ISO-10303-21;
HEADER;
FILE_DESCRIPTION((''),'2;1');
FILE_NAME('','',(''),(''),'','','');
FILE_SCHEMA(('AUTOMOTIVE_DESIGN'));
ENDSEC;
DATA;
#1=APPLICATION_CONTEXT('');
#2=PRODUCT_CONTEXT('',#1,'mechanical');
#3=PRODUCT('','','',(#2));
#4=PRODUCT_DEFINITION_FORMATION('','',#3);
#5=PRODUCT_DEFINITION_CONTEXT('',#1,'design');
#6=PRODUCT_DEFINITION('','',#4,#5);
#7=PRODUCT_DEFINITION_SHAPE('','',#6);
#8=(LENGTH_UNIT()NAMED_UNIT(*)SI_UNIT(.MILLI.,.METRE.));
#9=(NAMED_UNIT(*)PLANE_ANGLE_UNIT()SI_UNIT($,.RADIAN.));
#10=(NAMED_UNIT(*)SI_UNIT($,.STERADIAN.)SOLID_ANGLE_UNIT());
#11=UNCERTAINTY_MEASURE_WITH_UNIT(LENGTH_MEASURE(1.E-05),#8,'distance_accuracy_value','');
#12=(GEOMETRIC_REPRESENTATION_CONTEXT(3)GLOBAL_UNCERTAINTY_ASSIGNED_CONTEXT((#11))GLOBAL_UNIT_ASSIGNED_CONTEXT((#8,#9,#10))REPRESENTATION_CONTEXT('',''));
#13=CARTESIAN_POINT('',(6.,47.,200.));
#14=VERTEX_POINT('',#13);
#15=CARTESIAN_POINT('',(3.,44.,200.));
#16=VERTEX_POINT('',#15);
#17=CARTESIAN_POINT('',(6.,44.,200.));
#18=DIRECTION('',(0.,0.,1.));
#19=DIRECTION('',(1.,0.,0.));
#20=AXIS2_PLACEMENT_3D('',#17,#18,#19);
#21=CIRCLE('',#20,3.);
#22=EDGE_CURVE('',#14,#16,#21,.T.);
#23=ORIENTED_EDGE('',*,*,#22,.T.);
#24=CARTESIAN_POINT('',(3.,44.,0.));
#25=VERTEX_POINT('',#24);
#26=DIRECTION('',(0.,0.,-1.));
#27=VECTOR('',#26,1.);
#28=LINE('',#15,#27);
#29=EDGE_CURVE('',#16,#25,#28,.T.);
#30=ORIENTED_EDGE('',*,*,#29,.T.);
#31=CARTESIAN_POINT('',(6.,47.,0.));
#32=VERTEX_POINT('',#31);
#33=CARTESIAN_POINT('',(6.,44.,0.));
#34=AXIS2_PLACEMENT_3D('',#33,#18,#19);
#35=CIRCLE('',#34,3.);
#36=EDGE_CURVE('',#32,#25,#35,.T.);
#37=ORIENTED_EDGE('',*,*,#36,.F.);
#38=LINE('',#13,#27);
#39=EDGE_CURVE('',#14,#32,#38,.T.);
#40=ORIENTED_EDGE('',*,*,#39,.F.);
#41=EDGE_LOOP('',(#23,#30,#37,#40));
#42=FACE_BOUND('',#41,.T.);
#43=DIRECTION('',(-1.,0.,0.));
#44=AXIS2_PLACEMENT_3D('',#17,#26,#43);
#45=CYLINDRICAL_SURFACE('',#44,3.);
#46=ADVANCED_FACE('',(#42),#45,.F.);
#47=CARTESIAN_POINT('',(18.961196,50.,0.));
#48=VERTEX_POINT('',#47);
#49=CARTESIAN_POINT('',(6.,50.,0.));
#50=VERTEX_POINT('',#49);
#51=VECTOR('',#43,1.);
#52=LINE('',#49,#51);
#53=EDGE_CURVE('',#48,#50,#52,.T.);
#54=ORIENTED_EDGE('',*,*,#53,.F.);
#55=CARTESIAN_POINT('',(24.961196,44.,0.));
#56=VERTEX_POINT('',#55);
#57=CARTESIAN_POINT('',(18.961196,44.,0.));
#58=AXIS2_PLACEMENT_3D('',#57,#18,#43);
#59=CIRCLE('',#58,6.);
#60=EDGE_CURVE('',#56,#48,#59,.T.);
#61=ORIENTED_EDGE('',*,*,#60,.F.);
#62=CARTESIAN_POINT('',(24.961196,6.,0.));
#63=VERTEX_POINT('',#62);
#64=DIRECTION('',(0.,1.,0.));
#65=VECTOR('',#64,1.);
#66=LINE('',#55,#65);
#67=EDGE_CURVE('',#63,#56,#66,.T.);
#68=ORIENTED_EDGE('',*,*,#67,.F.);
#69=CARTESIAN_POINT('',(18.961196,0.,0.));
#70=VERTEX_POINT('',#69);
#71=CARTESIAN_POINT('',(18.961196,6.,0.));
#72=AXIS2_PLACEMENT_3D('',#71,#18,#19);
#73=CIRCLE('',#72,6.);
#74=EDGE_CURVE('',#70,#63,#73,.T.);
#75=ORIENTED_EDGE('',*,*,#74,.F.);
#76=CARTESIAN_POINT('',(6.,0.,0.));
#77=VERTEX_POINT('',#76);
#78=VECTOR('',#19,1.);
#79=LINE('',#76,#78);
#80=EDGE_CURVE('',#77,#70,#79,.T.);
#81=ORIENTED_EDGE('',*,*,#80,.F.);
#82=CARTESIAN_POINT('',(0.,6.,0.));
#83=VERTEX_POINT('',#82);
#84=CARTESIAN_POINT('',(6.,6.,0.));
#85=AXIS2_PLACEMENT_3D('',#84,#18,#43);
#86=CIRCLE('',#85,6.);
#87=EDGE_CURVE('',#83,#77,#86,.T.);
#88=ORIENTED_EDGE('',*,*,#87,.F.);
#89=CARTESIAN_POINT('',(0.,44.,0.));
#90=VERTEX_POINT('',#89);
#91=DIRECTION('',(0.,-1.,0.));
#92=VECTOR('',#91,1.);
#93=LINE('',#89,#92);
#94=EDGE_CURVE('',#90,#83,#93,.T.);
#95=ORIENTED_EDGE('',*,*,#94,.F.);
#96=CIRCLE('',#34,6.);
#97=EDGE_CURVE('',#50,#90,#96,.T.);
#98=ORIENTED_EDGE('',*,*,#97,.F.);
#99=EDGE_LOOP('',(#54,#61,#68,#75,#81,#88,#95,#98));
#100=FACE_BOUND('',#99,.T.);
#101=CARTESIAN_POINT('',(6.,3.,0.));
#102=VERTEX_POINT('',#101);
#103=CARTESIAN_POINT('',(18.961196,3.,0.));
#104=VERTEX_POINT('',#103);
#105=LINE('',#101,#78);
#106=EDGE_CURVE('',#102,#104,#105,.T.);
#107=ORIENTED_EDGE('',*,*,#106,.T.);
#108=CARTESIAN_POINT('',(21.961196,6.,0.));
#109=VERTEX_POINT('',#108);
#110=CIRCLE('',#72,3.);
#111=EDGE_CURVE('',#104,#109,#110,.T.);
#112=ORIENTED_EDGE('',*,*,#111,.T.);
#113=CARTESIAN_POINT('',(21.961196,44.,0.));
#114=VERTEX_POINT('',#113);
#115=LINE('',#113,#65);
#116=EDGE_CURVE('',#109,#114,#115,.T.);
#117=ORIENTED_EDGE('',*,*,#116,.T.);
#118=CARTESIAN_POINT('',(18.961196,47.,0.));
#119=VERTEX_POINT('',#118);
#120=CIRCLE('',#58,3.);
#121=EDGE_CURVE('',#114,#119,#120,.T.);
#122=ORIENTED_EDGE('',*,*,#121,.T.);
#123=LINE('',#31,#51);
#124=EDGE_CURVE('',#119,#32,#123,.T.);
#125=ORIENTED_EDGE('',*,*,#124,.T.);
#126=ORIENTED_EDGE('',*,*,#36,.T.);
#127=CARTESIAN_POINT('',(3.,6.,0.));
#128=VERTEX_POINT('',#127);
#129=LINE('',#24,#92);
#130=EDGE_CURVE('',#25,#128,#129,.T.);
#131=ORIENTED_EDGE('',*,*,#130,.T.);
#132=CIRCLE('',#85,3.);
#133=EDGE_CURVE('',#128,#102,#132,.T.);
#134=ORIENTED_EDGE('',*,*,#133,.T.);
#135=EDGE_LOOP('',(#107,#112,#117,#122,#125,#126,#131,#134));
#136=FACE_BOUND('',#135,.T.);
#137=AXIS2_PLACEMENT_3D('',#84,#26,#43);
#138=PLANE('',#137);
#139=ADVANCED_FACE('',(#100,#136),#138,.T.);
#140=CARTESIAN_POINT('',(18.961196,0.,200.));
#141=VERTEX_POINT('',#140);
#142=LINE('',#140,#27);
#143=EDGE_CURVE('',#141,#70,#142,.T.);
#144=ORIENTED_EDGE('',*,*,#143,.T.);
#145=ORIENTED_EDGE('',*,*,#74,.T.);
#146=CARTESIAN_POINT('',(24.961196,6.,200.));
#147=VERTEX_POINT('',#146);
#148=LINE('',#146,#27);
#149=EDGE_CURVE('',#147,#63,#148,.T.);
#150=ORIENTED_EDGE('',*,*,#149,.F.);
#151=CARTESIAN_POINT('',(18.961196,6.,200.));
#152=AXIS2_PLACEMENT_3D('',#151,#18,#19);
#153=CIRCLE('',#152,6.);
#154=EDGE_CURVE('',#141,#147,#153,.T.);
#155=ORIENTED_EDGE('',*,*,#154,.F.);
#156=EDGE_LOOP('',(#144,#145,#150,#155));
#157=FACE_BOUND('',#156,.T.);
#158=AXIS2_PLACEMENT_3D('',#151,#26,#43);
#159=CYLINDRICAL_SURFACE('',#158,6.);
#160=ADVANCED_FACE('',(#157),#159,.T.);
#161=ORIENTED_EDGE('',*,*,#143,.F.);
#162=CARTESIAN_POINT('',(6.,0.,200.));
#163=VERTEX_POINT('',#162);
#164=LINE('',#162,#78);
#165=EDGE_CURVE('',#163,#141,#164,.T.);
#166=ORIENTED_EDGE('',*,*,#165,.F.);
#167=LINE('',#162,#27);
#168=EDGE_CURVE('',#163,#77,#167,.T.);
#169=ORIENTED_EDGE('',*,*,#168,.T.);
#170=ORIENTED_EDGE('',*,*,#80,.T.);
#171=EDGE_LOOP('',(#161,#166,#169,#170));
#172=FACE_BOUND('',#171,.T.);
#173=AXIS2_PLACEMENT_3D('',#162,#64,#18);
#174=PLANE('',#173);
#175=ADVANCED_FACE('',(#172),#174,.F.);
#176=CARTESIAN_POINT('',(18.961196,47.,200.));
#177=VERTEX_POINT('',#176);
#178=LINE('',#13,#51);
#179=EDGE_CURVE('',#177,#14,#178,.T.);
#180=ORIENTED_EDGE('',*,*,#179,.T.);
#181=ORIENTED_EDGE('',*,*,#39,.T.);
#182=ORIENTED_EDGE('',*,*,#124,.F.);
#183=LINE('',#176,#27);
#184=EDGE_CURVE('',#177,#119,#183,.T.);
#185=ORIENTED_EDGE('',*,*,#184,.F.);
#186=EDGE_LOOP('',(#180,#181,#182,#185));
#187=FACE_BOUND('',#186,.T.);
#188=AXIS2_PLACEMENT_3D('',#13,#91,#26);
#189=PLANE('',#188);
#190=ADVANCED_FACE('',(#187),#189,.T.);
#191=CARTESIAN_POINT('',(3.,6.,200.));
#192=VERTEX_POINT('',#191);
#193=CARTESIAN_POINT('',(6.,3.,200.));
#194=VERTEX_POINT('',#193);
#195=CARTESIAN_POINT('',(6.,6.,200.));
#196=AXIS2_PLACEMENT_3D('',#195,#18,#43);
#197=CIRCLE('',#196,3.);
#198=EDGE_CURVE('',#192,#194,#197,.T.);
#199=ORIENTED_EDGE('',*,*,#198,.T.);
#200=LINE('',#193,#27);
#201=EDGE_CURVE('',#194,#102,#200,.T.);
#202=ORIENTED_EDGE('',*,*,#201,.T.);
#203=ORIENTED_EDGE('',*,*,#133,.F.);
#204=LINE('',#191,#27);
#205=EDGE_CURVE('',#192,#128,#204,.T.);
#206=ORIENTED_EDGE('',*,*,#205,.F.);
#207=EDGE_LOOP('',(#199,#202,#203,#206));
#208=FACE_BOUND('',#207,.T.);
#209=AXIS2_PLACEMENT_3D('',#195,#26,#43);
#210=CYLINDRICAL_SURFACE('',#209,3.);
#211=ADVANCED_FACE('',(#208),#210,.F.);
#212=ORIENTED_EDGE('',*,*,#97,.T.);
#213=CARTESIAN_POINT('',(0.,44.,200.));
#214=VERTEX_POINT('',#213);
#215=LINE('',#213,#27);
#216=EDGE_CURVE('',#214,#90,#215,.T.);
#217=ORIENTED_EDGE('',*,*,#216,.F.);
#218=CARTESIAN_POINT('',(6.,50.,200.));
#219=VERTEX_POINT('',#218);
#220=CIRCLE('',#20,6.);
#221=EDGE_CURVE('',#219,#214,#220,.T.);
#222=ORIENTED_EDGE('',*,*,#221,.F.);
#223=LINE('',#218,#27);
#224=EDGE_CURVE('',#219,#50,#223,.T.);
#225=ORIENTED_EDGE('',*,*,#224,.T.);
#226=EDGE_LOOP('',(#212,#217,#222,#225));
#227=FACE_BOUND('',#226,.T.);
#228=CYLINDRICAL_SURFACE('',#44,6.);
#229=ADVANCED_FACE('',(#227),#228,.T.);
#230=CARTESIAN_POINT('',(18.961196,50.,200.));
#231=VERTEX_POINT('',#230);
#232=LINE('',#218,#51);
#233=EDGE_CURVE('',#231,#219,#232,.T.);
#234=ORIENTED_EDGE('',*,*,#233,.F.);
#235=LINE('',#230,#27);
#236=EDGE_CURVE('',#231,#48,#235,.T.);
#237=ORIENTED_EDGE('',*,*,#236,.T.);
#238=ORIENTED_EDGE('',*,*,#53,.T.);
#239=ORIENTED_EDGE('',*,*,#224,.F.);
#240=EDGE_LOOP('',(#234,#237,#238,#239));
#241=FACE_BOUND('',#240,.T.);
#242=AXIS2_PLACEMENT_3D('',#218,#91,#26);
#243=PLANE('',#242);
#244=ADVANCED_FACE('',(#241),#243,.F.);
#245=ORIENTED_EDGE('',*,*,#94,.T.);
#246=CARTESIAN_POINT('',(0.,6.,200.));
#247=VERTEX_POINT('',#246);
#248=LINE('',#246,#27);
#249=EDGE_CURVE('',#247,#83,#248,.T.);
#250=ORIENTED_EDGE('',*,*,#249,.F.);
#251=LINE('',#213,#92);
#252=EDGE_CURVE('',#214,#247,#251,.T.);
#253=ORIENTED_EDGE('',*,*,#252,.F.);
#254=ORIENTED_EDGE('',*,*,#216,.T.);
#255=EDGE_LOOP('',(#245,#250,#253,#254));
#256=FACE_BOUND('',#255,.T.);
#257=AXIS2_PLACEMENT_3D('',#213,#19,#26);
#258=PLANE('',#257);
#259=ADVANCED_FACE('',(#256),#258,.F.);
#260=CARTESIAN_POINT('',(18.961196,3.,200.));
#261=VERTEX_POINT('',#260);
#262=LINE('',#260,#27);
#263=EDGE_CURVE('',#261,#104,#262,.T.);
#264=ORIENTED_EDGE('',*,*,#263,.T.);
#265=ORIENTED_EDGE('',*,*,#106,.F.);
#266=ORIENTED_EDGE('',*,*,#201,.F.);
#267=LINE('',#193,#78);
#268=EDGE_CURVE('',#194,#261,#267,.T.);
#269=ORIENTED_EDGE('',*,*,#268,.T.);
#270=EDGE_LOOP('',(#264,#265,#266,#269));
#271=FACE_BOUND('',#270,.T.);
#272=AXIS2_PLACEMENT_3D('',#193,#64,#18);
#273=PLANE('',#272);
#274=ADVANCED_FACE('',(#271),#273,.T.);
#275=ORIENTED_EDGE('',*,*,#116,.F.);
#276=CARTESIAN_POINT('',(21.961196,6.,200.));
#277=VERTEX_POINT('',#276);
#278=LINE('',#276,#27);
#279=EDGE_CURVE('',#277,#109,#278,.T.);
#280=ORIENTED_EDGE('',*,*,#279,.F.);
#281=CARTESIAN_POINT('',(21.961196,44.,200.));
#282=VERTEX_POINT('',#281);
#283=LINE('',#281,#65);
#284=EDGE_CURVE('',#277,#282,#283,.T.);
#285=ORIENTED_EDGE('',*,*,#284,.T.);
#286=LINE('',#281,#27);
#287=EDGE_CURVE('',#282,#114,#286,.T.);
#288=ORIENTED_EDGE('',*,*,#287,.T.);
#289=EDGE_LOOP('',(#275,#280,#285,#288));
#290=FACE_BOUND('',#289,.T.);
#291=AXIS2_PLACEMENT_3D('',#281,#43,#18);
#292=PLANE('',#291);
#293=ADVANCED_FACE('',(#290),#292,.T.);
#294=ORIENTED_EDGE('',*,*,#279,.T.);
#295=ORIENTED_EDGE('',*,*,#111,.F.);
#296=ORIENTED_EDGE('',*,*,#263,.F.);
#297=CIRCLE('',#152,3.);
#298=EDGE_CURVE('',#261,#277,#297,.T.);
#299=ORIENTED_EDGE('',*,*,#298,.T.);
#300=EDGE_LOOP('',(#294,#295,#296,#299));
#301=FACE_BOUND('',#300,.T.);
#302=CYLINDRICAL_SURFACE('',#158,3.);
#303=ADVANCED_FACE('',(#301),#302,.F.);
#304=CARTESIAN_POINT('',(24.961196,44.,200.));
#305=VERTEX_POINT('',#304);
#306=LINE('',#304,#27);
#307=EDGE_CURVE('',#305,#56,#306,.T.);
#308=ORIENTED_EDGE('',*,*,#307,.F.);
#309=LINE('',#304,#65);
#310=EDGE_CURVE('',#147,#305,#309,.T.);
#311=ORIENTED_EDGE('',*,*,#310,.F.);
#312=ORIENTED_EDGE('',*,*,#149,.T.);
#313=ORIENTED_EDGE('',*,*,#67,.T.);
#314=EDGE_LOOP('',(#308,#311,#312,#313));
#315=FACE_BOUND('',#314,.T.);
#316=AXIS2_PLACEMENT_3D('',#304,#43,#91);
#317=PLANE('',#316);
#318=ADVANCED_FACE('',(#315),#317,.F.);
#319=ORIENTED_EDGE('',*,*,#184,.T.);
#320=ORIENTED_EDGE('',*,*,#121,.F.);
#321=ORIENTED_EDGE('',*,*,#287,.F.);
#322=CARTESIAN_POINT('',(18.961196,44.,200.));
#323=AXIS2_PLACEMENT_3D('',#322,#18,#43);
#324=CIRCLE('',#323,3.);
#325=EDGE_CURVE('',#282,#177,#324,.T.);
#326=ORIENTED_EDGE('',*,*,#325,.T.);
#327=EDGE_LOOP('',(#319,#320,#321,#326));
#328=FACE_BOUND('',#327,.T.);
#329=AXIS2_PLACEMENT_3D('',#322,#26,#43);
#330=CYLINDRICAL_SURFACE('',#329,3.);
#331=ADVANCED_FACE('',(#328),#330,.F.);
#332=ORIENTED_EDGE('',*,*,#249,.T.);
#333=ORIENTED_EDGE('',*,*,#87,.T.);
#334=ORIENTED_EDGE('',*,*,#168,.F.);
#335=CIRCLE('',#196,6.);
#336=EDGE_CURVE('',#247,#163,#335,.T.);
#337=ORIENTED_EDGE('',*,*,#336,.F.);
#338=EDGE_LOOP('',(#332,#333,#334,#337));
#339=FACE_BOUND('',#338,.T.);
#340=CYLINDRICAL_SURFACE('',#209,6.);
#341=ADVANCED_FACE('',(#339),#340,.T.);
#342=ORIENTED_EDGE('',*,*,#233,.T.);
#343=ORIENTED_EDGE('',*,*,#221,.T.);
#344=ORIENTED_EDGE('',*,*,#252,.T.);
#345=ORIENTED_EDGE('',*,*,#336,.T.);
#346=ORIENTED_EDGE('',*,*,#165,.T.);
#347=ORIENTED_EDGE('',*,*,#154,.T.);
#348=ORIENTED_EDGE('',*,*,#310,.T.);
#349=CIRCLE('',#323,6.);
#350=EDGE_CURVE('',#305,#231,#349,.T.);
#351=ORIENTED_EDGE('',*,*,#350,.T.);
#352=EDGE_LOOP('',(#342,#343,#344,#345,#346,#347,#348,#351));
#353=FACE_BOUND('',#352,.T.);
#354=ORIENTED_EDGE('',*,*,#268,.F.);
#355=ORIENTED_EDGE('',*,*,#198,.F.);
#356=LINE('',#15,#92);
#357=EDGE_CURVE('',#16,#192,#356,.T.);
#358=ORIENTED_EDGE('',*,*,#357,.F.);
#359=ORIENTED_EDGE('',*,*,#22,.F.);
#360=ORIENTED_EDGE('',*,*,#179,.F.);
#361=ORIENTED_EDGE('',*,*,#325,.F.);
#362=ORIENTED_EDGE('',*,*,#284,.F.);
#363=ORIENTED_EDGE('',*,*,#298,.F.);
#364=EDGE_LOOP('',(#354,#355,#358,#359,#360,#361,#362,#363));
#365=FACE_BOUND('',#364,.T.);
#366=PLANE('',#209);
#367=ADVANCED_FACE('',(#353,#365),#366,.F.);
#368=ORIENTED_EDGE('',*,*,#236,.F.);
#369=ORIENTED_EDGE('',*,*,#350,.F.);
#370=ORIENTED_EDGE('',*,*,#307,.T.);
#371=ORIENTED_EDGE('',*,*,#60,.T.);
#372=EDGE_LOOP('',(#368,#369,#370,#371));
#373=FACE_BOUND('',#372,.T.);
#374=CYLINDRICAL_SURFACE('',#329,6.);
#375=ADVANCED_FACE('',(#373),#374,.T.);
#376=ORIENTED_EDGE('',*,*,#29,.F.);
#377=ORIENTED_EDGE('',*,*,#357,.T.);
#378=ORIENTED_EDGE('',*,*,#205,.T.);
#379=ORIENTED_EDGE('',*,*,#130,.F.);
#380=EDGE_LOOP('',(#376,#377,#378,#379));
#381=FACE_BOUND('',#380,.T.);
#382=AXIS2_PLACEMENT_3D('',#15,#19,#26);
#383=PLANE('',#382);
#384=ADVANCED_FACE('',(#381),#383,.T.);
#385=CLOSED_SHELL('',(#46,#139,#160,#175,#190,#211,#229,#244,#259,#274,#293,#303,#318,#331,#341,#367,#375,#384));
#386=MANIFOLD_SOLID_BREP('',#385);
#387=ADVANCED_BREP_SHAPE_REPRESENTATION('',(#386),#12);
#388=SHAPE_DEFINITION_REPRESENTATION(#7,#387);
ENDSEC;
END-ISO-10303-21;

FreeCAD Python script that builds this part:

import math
import FreeCAD as App
import Part
import Sketcher

V = App.Vector

doc = App.newDocument("Part")
body = doc.addObject("PartDesign::Body", "Body")

# Sketch on XY plane
sketch1 = body.newObject("Sketcher::SketchObject", "Sketch")
sketch1.AttachmentSupport = (doc.getObject("XY_Plane"), [""])
sketch1.MapMode = "FlatFace"
sketch1.addGeometry(Part.LineSegment(V(0, 44, 0), V(0, 6, 0)), False)
sketch1.addGeometry(Part.ArcOfCircle(Part.Circle(V(6, 6, 0), V(0, 0, 1), 6), math.radians(180), math.radians(270)), False)
sketch1.addGeometry(Part.LineSegment(V(6, 0, 0), V(19, 0, 0)), False)
sketch1.addGeometry(Part.ArcOfCircle(Part.Circle(V(19, 6, 0), V(0, 0, 1), 6), math.radians(-90), math.radians(0)), False)
sketch1.addGeometry(Part.LineSegment(V(25, 6, 0), V(25, 44, 0)), False)
sketch1.addGeometry(Part.ArcOfCircle(Part.Circle(V(19, 44, 0), V(0, 0, 1), 6), math.radians(0), math.radians(90)), False)
sketch1.addGeometry(Part.LineSegment(V(19, 50, 0), V(6, 50, 0)), False)
sketch1.addGeometry(Part.ArcOfCircle(Part.Circle(V(6, 44, 0), V(0, 0, 1), 6), math.radians(90), math.radians(180)), False)
sketch1.addGeometry(Part.LineSegment(V(3, 6, 0), V(3, 44, 0)), False)
sketch1.addGeometry(Part.ArcOfCircle(Part.Circle(V(6, 44, 0), V(0, 0, 1), 3), math.radians(90), math.radians(180)), False)
sketch1.addGeometry(Part.LineSegment(V(6, 47, 0), V(19, 47, 0)), False)
sketch1.addGeometry(Part.ArcOfCircle(Part.Circle(V(19, 44, 0), V(0, 0, 1), 3), math.radians(0), math.radians(90)), False)
sketch1.addGeometry(Part.LineSegment(V(22, 44, 0), V(22, 6, 0)), False)
sketch1.addGeometry(Part.ArcOfCircle(Part.Circle(V(19, 6, 0), V(0, 0, 1), 3), math.radians(-90), math.radians(0)), False)
sketch1.addGeometry(Part.LineSegment(V(19, 3, 0), V(6, 3, 0)), False)
sketch1.addGeometry(Part.ArcOfCircle(Part.Circle(V(6, 6, 0), V(0, 0, 1), 3), math.radians(180), math.radians(270)), False)
sketch1.addConstraint(Sketcher.Constraint("Tangent", 0, 2, 1, 1))
sketch1.addConstraint(Sketcher.Constraint("Tangent", 1, 2, 2, 1))
sketch1.addConstraint(Sketcher.Constraint("Tangent", 2, 2, 3, 1))
sketch1.addConstraint(Sketcher.Constraint("Tangent", 3, 2, 4, 1))
sketch1.addConstraint(Sketcher.Constraint("Tangent", 4, 2, 5, 1))
sketch1.addConstraint(Sketcher.Constraint("Tangent", 5, 2, 6, 1))
sketch1.addConstraint(Sketcher.Constraint("Tangent", 6, 2, 7, 1))
sketch1.addConstraint(Sketcher.Constraint("Tangent", 7, 2, 0, 1))
sketch1.addConstraint(Sketcher.Constraint("Tangent", 8, 2, 9, 2))
sketch1.addConstraint(Sketcher.Constraint("Tangent", 9, 1, 10, 1))
sketch1.addConstraint(Sketcher.Constraint("Tangent", 10, 2, 11, 2))
sketch1.addConstraint(Sketcher.Constraint("Tangent", 11, 1, 12, 1))
sketch1.addConstraint(Sketcher.Constraint("Tangent", 12, 2, 13, 2))
sketch1.addConstraint(Sketcher.Constraint("Tangent", 13, 1, 14, 1))
sketch1.addConstraint(Sketcher.Constraint("Tangent", 14, 2, 15, 2))
sketch1.addConstraint(Sketcher.Constraint("Tangent", 15, 1, 8, 1))
sketch1.addConstraint(Sketcher.Constraint("Vertical", 0))
sketch1.addConstraint(Sketcher.Constraint("Horizontal", 2))
sketch1.addConstraint(Sketcher.Constraint("Vertical", 4))
sketch1.addConstraint(Sketcher.Constraint("Horizontal", 6))
sketch1.addConstraint(Sketcher.Constraint("Vertical", 8))
sketch1.addConstraint(Sketcher.Constraint("Horizontal", 10))
sketch1.addConstraint(Sketcher.Constraint("Vertical", 12))
sketch1.addConstraint(Sketcher.Constraint("Horizontal", 14))
sketch1.addConstraint(Sketcher.Constraint("Coincident", 9, 3, 7, 3))
sketch1.addConstraint(Sketcher.Constraint("Coincident", 11, 3, 5, 3))
sketch1.addConstraint(Sketcher.Constraint("Coincident", 13, 3, 3, 3))
sketch1.addConstraint(Sketcher.Constraint("Equal", 1, 3))
sketch1.addConstraint(Sketcher.Constraint("Equal", 3, 5))
sketch1.addConstraint(Sketcher.Constraint("Equal", 5, 7))
sketch1.addConstraint(Sketcher.Constraint("Equal", 13, 15))
sketch1.addConstraint(Sketcher.Constraint("PointOnObject", 0, 2, -2))
sketch1.addConstraint(Sketcher.Constraint("PointOnObject", 1, 2, -1))
sketch1.addConstraint(Sketcher.Constraint("Radius", 1, 6.0))
sketch1.addConstraint(Sketcher.Constraint("Radius", 9, 3.0))
sketch1.addConstraint(Sketcher.Constraint("DistanceY", 0, 2, 0, 1, 38.0))
sketch1.addConstraint(Sketcher.Constraint("DistanceX", 2, 1, 2, 2, 12.961196))
pad1 = body.newObject("PartDesign::Pad", "Pad")
pad1.Profile = sketch1
pad1.Length = 200

doc.recompute()
